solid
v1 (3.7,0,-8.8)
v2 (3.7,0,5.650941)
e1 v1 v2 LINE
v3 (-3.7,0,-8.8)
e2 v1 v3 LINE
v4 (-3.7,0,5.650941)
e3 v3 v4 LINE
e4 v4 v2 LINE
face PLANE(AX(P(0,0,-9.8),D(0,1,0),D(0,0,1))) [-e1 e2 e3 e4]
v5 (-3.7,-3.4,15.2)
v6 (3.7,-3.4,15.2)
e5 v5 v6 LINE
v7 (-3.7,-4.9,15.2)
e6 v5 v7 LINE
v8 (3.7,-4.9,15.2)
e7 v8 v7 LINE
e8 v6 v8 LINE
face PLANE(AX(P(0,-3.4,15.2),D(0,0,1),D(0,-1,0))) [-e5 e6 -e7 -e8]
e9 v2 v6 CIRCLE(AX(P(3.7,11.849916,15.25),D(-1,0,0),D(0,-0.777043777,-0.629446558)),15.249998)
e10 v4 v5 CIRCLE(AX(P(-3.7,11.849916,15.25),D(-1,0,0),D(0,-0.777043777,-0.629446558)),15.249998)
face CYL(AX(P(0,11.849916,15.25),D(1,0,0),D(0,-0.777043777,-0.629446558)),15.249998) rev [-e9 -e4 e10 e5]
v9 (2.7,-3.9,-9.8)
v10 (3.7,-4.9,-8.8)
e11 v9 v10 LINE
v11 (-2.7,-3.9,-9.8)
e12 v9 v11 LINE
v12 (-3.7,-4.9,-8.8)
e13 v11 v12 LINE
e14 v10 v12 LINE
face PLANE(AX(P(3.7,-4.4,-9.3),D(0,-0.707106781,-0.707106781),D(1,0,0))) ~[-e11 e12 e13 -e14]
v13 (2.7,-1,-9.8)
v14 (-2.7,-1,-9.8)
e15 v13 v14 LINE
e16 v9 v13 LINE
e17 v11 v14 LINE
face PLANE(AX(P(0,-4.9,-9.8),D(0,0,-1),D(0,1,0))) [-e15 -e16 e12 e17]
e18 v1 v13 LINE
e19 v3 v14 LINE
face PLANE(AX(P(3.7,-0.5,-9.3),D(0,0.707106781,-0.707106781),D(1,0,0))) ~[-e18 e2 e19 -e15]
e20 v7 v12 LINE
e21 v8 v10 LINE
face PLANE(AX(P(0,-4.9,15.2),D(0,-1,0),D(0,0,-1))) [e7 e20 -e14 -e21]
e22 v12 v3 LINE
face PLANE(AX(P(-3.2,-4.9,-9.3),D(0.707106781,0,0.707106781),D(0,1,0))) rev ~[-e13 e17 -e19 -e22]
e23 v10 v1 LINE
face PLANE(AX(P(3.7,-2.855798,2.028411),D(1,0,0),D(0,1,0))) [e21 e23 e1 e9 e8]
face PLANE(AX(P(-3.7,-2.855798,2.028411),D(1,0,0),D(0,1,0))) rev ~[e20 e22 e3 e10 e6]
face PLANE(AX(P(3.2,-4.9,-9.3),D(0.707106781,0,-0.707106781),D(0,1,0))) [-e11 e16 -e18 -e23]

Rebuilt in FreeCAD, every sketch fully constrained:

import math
import FreeCAD as App
import Part
import Sketcher

V = App.Vector


def edges_at(feature, points):
    """Names of the edges that pass closest to the given points."""
    edges = feature.Shape.Edges
    near = lambda p: min(range(len(edges)), key=lambda i: edges[i].distToShape(Part.Vertex(*p))[0])
    return sorted({f"Edge{near(p) + 1}" for p in points})

doc = App.newDocument("Part")
body = doc.addObject("PartDesign::Body", "Body")

sketch1 = body.newObject("Sketcher::SketchObject", "Sketch")
sketch1.AttachmentSupport = (doc.getObject("YZ_Plane"), [""])
sketch1.MapMode = "FlatFace"
sketch1.addGeometry([
    Part.LineSegment(V(0, -9.8, 0), V(0, 5.650941, 0)),
    Part.ArcOfCircle(Part.Circle(V(11.849916, 15.25, 0), V(0, 0, 1), 15.249998), math.radians(-179.812145), math.radians(-140.990698)),
    Part.LineSegment(V(-3.4, 15.2, 0), V(-4.9, 15.2, 0)),
    Part.LineSegment(V(-4.9, 15.2, 0), V(-4.9, -9.8, 0)),
    Part.LineSegment(V(-4.9, -9.8, 0), V(0, -9.8, 0)),
], False)
sketch1.addConstraint([
    Sketcher.Constraint("Coincident", 0, 2, 1, 2),
    Sketcher.Constraint("Coincident", 1, 1, 2, 1),
    Sketcher.Constraint("Coincident", 2, 2, 3, 1),
    Sketcher.Constraint("Coincident", 3, 2, 4, 1),
    Sketcher.Constraint("Coincident", 4, 2, 0, 1),
    Sketcher.Constraint("Vertical", 0),
    Sketcher.Constraint("Horizontal", 2),
    Sketcher.Constraint("Vertical", 3),
    Sketcher.Constraint("Horizontal", 4),
    Sketcher.Constraint("PointOnObject", 0, 2, -2),
    Sketcher.Constraint("DistanceY", 3, 2, 3, 1, 25.0),
    Sketcher.Constraint("Radius", 1, 15.249998),
    Sketcher.Constraint("DistanceX", 2, 2, 2, 1, 1.5),
    Sketcher.Constraint("DistanceX", 4, 1, 4, 2, 4.9),
    Sketcher.Constraint("DistanceY", -1, 1, 1, 1, 15.2),
    Sketcher.Constraint("DistanceY", -1, 1, 1, 3, 15.25),
])
pad1 = body.newObject("PartDesign::Pad", "Pad")
pad1.Profile = sketch1
pad1.Length = 7.4
pad1.Midplane = True
doc.recompute()

chamfer = body.newObject("PartDesign::Chamfer", "Chamfer")
chamfer.Base = (pad1, edges_at(pad1, [
    (0, -4.9, -9.8),
    (0, 0, -9.8),
    (3.7, -2.45, -9.8),
    (-3.7, -2.45, -9.8),
]))
chamfer.Size = 1

doc.recompute()
